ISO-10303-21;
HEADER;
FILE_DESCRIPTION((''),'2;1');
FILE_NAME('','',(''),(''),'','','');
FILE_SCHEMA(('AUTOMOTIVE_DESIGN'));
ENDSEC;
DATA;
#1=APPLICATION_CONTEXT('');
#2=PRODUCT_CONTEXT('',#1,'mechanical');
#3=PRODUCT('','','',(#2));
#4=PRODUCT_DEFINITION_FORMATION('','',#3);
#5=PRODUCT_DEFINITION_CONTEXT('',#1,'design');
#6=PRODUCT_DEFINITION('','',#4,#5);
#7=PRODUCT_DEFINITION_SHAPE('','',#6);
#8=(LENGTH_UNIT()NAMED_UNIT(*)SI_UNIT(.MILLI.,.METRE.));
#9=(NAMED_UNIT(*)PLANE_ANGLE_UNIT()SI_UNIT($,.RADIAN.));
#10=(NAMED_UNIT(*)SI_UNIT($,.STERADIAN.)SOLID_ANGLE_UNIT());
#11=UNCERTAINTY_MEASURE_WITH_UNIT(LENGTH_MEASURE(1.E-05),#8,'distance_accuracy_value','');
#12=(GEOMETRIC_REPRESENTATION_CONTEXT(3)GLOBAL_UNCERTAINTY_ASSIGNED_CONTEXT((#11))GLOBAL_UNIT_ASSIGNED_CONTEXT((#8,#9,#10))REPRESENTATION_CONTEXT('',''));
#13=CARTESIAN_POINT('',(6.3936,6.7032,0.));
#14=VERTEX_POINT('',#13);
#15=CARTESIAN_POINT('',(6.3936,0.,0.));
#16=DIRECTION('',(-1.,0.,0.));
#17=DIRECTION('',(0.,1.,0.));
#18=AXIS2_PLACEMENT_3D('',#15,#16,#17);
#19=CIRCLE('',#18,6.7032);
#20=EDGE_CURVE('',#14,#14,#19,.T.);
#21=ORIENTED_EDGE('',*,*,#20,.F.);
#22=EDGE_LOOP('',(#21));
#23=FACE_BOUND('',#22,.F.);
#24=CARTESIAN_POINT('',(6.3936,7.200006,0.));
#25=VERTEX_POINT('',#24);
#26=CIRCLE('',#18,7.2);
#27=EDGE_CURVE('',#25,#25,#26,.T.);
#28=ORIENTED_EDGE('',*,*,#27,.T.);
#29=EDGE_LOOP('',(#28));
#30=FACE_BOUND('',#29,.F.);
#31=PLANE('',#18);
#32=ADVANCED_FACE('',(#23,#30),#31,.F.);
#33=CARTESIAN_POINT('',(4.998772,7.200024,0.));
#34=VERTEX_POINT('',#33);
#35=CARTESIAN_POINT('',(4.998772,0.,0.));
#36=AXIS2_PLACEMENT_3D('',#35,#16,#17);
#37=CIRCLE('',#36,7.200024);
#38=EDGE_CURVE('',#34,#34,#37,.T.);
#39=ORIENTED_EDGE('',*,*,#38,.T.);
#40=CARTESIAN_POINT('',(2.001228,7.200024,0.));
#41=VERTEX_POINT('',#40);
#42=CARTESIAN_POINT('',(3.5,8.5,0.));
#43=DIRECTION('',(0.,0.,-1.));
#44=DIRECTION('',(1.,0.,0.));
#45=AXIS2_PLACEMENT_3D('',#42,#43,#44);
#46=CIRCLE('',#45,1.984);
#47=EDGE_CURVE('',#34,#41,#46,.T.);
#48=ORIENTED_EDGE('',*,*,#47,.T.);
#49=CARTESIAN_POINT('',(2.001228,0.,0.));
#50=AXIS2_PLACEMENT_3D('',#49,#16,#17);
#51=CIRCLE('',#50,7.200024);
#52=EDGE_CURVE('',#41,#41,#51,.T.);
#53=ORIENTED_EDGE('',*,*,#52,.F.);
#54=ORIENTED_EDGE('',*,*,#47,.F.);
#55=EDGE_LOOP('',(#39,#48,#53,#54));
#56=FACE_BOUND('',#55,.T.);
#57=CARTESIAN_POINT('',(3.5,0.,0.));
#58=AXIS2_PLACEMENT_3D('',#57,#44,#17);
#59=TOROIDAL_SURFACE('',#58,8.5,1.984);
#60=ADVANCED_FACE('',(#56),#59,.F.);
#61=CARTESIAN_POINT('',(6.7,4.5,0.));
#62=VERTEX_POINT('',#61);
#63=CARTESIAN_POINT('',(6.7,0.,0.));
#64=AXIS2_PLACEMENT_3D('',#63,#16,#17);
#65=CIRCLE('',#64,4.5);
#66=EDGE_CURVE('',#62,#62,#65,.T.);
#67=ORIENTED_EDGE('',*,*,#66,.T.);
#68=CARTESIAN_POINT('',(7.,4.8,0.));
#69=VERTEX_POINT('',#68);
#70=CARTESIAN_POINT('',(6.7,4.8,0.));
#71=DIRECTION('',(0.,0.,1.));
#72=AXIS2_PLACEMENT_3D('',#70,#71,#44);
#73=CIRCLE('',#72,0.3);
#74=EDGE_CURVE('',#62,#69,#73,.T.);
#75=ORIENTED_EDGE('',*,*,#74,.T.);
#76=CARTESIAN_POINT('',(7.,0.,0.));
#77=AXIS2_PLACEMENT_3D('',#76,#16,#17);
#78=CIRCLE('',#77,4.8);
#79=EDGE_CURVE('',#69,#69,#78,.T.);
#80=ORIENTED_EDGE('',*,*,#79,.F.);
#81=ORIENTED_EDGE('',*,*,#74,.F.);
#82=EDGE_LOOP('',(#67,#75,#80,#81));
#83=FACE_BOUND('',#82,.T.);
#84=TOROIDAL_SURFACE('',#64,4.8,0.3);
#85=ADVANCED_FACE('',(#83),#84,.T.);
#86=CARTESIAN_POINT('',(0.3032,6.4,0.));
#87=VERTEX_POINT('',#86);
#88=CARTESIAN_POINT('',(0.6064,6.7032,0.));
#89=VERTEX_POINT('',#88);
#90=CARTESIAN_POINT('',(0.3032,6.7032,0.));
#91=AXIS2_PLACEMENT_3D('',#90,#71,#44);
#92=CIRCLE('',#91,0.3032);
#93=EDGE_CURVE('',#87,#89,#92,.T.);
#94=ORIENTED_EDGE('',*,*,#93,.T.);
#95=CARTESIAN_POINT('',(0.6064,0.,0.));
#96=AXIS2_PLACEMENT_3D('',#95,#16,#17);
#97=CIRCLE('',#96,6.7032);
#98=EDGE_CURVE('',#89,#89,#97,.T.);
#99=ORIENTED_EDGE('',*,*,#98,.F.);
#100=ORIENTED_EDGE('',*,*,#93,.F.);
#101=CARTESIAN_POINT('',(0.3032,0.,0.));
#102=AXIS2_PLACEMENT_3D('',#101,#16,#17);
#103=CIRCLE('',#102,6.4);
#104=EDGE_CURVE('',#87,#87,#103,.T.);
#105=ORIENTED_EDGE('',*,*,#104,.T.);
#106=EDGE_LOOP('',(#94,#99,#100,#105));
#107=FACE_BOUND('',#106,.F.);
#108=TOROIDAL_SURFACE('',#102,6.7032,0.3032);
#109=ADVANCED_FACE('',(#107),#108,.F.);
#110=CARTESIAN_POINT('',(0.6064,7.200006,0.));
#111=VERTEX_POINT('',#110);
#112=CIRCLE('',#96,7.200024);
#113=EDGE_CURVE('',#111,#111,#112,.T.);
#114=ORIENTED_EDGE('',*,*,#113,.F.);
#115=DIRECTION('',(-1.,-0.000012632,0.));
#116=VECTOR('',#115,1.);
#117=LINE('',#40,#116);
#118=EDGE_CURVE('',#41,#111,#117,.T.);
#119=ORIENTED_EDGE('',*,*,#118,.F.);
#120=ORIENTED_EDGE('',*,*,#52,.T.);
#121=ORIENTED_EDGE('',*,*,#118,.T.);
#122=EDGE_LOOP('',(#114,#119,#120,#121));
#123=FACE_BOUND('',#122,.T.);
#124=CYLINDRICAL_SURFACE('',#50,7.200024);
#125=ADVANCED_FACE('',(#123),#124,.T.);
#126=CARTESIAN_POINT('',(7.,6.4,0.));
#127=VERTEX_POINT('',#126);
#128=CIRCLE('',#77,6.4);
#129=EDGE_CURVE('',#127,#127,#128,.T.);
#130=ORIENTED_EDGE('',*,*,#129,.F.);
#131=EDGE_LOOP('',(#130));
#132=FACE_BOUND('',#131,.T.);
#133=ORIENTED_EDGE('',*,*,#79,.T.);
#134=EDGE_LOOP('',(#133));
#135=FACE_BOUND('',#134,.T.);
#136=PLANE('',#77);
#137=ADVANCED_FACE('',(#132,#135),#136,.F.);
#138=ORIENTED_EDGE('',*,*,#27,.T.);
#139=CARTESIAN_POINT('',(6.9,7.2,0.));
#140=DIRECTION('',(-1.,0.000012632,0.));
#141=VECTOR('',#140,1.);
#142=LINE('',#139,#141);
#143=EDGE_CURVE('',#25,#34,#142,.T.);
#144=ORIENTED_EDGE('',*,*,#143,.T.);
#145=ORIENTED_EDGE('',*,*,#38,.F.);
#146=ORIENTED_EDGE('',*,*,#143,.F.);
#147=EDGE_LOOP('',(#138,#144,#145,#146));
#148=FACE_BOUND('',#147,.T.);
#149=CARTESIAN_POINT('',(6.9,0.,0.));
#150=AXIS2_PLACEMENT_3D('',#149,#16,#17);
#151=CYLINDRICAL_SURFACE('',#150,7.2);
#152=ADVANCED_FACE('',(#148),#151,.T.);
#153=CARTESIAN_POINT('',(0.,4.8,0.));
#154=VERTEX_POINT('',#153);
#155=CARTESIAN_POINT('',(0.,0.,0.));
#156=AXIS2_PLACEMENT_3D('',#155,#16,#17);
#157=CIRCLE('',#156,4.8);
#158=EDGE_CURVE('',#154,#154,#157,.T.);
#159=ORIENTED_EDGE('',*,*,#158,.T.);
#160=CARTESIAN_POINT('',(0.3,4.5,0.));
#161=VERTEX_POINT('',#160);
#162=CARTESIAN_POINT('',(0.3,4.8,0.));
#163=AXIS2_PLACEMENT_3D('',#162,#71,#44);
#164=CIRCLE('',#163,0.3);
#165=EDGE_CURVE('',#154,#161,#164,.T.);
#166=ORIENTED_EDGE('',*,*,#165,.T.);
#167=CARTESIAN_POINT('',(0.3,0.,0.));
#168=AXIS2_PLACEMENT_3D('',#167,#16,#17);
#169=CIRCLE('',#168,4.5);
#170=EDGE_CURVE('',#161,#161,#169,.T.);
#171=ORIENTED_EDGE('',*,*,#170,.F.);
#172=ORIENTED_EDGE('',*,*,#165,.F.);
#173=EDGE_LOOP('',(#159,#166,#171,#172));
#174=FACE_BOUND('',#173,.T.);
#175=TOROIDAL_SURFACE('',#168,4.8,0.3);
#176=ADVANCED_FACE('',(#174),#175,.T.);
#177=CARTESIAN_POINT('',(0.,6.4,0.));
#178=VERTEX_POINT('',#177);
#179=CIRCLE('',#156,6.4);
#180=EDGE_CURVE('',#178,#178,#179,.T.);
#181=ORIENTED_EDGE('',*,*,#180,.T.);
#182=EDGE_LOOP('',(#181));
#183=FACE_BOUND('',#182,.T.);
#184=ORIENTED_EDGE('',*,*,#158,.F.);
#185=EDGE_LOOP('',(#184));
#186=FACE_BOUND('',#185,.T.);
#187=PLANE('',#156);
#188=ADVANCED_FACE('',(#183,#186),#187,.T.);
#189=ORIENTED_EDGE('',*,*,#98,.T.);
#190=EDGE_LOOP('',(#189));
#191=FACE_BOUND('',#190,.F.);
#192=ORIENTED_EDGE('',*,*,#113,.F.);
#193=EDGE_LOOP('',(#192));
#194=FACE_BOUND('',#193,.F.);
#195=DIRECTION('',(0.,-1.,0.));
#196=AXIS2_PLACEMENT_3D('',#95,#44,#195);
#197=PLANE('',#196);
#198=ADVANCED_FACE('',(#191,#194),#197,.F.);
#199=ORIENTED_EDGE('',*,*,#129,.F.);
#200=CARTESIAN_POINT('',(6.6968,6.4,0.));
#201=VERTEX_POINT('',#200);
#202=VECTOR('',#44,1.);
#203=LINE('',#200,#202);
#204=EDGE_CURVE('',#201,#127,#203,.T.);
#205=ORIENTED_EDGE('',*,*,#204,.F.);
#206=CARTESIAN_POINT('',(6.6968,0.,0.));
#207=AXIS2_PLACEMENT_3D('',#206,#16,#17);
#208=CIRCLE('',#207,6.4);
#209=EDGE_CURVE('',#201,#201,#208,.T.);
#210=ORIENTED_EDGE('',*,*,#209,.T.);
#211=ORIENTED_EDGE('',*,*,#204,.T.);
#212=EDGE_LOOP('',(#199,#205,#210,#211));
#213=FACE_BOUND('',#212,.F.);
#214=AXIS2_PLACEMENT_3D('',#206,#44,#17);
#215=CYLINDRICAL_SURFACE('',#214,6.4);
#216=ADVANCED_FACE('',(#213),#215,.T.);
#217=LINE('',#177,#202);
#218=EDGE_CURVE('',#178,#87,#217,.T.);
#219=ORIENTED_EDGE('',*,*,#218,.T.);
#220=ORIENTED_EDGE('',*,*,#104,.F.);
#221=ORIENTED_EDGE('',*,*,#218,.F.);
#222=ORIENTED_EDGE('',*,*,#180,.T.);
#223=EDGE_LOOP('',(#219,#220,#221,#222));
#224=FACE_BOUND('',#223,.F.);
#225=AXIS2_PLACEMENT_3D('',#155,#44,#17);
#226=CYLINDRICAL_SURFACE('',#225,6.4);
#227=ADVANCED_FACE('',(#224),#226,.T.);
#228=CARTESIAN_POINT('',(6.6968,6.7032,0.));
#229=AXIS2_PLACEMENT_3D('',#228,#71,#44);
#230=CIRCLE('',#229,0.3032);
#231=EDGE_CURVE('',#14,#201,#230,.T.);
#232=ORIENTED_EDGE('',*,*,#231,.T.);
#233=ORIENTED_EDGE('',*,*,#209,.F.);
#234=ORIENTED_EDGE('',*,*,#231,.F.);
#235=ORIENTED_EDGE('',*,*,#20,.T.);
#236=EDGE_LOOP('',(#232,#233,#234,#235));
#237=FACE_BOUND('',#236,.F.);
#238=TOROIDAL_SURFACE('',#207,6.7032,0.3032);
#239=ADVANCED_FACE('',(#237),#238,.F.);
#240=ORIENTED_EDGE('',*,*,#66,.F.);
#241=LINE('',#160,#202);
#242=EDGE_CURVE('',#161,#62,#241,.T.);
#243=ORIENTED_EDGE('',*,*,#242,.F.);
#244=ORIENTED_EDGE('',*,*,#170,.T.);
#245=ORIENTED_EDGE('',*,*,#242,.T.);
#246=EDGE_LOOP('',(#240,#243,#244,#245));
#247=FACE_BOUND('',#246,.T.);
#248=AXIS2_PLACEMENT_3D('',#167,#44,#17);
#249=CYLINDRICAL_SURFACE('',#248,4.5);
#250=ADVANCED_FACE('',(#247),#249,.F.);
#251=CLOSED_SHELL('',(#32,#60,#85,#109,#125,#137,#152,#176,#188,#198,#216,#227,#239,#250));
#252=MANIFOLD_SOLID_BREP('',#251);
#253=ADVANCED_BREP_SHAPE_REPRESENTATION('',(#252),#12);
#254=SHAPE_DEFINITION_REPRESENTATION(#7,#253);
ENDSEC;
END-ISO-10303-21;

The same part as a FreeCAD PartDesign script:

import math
import FreeCAD as App
import Part
import Sketcher
from FreeCAD import Vector

doc = App.newDocument("Part")
body = doc.addObject("PartDesign::Body", "Body")

sketch1 = body.newObject("Sketcher::SketchObject", "Sketch")
sketch1.AttachmentSupport = (doc.getObject("XY_Plane"), [""])
sketch1.MapMode = "FlatFace"
sketch1.addGeometry([
    Part.LineSegment(Vector(0, 7.1, 0), Vector(0, 4.8, 0)),
    Part.ArcOfCircle(Part.Circle(Vector(0.3, 4.8, 0), Vector(0, 0, 1), 0.3), math.radians(180), math.radians(270)),
    Part.LineSegment(Vector(0.3, 4.5, 0), Vector(6.7, 4.5, 0)),
    Part.ArcOfCircle(Part.Circle(Vector(6.7, 4.8, 0), Vector(0, 0, 1), 0.3), math.radians(-90), math.radians(0)),
    Part.LineSegment(Vector(7, 4.8, 0), Vector(7, 7.1, 0)),
    Part.ArcOfCircle(Part.Circle(Vector(6.9, 7.1, 0), Vector(0, 0, 1), 0.1), math.radians(0), math.radians(90)),
    Part.LineSegment(Vector(6.9, 7.2, 0), Vector(5, 7.2, 0)),
    Part.ArcOfCircle(Part.Circle(Vector(3.5, 8.5, 0), Vector(0, 0, 1), 1.98), math.radians(-139), math.radians(-41)),
    Part.LineSegment(Vector(2, 7.2, 0), Vector(0.1, 7.2, 0)),
    Part.ArcOfCircle(Part.Circle(Vector(0.1, 7.1, 0), Vector(0, 0, 1), 0.1), math.radians(90), math.radians(180)),
], False)
sketch1.addConstraint([
    Sketcher.Constraint("Tangent", 0, 2, 1, 1),
    Sketcher.Constraint("Tangent", 1, 2, 2, 1),
    Sketcher.Constraint("Tangent", 2, 2, 3, 1),
    Sketcher.Constraint("Tangent", 3, 2, 4, 1),
    Sketcher.Constraint("Tangent", 4, 2, 5, 1),
    Sketcher.Constraint("Tangent", 5, 2, 6, 1),
    Sketcher.Constraint("Coincident", 6, 2, 7, 2),
    Sketcher.Constraint("Coincident", 7, 1, 8, 1),
    Sketcher.Constraint("Tangent", 8, 2, 9, 1),
    Sketcher.Constraint("Tangent", 9, 2, 0, 1),
    Sketcher.Constraint("Vertical", 0),
    Sketcher.Constraint("Horizontal", 2),
    Sketcher.Constraint("Vertical", 4),
    Sketcher.Constraint("Horizontal", 6),
    Sketcher.Constraint("Horizontal", 8),
    Sketcher.Constraint("Equal", 1, 3),
    Sketcher.Constraint("Equal", 5, 9),
    Sketcher.Constraint("PointOnObject", 0, 2, -2),
    Sketcher.Constraint("Horizontal", 5, 3, 9, 3),
    Sketcher.Constraint("Equal", 6, 8),
    Sketcher.Constraint("Radius", 1, 0.3),
    Sketcher.Constraint("Radius", 5, 0.1),
    Sketcher.Constraint("DistanceX", 2, 1, 2, 2, 6.4),
    Sketcher.Constraint("DistanceY", 0, 2, 0, 1, 2.3),
    Sketcher.Constraint("Radius", 7, 1.984),
    Sketcher.Constraint("DistanceY", 1, 2, 7, 3, 4.0),
    Sketcher.Constraint("DistanceY", -1, 1, 1, 3, 4.8),
])
revolution = body.newObject("PartDesign::Revolution", "Revolution")
revolution.Profile = sketch1
revolution.ReferenceAxis = (sketch1, ["H_Axis"])
revolution.Angle = 360

sketch2 = body.newObject("Sketcher::SketchObject", "Sketch001")
sketch2.AttachmentSupport = (doc.getObject("XY_Plane"), [""])
sketch2.MapMode = "FlatFace"
sketch2.addGeometry([
    Part.LineSegment(Vector(0, 8.8, 0), Vector(0, 6.4, 0)),
    Part.LineSegment(Vector(0, 6.4, 0), Vector(0.3, 6.4, 0)),
    Part.ArcOfCircle(Part.Circle(Vector(0.3, 6.7, 0), Vector(0, 0, 1), 0.3), math.radians(-90), math.radians(0)),
    Part.LineSegment(Vector(0.61, 6.7, 0), Vector(0.61, 8, 0)),
    Part.LineSegment(Vector(0.61, 8, 0), Vector(6.39, 8, 0)),
    Part.LineSegment(Vector(6.39, 8, 0), Vector(6.39, 6.7, 0)),
    Part.ArcOfCircle(Part.Circle(Vector(6.7, 6.7, 0), Vector(0, 0, 1), 0.3), math.radians(180), math.radians(270)),
    Part.LineSegment(Vector(6.7, 6.4, 0), Vector(7, 6.4, 0)),
    Part.LineSegment(Vector(7, 6.4, 0), Vector(7, 8.8, 0)),
    Part.LineSegment(Vector(7, 8.8, 0), Vector(0, 8.8, 0)),
], False)
sketch2.addConstraint([
    Sketcher.Constraint("Coincident", 0, 2, 1, 1),
    Sketcher.Constraint("Tangent", 1, 2, 2, 1),
    Sketcher.Constraint("Tangent", 2, 2, 3, 1),
    Sketcher.Constraint("Coincident", 3, 2, 4, 1),
    Sketcher.Constraint("Coincident", 4, 2, 5, 1),
    Sketcher.Constraint("Tangent", 5, 2, 6, 1),
    Sketcher.Constraint("Tangent", 6, 2, 7, 1),
    Sketcher.Constraint("Coincident", 7, 2, 8, 1),
    Sketcher.Constraint("Coincident", 8, 2, 9, 1),
    Sketcher.Constraint("Coincident", 9, 2, 0, 1),
    Sketcher.Constraint("Vertical", 0),
    Sketcher.Constraint("Horizontal", 1),
    Sketcher.Constraint("Vertical", 3),
    Sketcher.Constraint("Horizontal", 4),
    Sketcher.Constraint("Vertical", 5),
    Sketcher.Constraint("Horizontal", 7),
    Sketcher.Constraint("Vertical", 8),
    Sketcher.Constraint("Horizontal", 9),
    Sketcher.Constraint("Equal", 2, 6),
    Sketcher.Constraint("PointOnObject", 0, 2, -2),
    Sketcher.Constraint("Horizontal", 2, 3, 6, 3),
    Sketcher.Constraint("Equal", 1, 7),
    Sketcher.Constraint("DistanceX", 9, 2, 9, 1, 7.0),
    Sketcher.Constraint("DistanceY", 0, 2, 0, 1, 2.4),
    Sketcher.Constraint("DistanceY", -1, 1, 3, 2, 8.0),
    Sketcher.Constraint("DistanceY", -1, 1, 0, 2, 6.4),
    Sketcher.Constraint("Radius", 2, 0.3032),
    Sketcher.Constraint("DistanceX", 1, 1, 1, 2, 0.3032),
])
groove = body.newObject("PartDesign::Groove", "Groove")
groove.Profile = sketch2
groove.ReferenceAxis = (sketch2, ["H_Axis"])
groove.Angle = 360

doc.recompute()
